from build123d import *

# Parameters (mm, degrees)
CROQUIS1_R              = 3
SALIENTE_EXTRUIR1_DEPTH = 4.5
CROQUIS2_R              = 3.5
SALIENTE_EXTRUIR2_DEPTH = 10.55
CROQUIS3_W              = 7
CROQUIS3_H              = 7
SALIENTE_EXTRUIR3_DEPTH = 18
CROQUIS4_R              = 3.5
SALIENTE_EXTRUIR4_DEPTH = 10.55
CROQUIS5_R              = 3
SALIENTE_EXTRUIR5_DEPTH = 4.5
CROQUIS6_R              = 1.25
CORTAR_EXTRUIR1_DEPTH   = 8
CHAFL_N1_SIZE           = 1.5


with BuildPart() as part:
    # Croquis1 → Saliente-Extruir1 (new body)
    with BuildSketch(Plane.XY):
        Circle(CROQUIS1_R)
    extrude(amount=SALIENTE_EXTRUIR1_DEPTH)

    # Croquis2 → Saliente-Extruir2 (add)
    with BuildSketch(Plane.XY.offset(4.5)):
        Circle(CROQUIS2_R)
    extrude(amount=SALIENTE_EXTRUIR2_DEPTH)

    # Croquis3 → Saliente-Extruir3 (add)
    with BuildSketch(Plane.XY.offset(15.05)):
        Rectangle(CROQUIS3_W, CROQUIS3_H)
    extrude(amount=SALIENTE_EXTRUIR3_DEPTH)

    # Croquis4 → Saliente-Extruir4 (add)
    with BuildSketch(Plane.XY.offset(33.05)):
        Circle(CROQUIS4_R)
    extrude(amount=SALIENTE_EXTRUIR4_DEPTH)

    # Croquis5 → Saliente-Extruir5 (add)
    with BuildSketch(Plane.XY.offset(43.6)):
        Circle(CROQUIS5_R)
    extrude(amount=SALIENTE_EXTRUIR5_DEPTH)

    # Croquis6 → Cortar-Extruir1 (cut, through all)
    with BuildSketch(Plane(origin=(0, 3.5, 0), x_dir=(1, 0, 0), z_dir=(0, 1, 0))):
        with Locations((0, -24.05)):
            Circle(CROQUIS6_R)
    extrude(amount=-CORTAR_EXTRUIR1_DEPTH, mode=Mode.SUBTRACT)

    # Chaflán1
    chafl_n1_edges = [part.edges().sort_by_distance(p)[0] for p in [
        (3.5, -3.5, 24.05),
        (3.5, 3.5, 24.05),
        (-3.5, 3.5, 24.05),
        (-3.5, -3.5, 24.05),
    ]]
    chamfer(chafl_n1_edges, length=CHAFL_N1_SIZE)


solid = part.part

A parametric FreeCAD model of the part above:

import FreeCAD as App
import Part
import Sketcher
Q = App.Units.Quantity


def edges_at(feature, points):
    """Names of the edges that pass closest to the given points."""
    edges = feature.Shape.Edges
    near = lambda p: min(range(len(edges)), key=lambda i: edges[i].distToShape(Part.Vertex(*p))[0])
    return sorted({f"Edge{near(p) + 1}" for p in points})

doc = App.newDocument("Part")
params = doc.addObject("Spreadsheet::Sheet", "Params")
for row, (alias, value) in enumerate([
    ("sketch1_diameter", "6 mm"),
    ("pad1_length", "4.5 mm"),
    ("sketch2_diameter", "7 mm"),
    ("pad2_length", "10.55 mm"),
    ("sketch3_width", "7 mm"),
    ("pad3_length", "18 mm"),
    ("sketch4_diameter", "7 mm"),
    ("pad4_length", "10.55 mm"),
    ("sketch5_diameter", "6 mm"),
    ("pad5_length", "4.5 mm"),
    ("sketch6_diameter", "2.5 mm"),
    ("chamfer_size", "1.5 mm"),
], start=1):
    params.set(f"A{row}", alias)
    params.set(f"B{row}", "=" + value)
    params.setAlias(f"B{row}", alias)

body = doc.addObject("PartDesign::Body", "Body")

sketch1 = doc.addObject("Sketcher::SketchObject", "Sketch")
body.addObject(sketch1)
sketch1.AttachmentSupport = (doc.XY_Plane, [""])
sketch1.MapMode = "FlatFace"
sketch1.addGeometry(Part.Circle(App.Vector(0, 0, 0), App.Vector(0, 0, 1), 3), False)
sketch1.addConstraint([
    Sketcher.Constraint("Coincident", 0, 3, -1, 1),
    Sketcher.Constraint("Diameter", 0, Q("6 mm")),
])
sketch1.setExpression("Constraints[1]", "Params.sketch1_diameter")
pad1 = doc.addObject("PartDesign::Pad", "Pad")
body.addObject(pad1)
pad1.Profile = sketch1
pad1.setExpression("Length", "Params.pad1_length")

sketch2 = doc.addObject("Sketcher::SketchObject", "Sketch001")
body.addObject(sketch2)
sketch2.AttachmentSupport = (doc.XY_Plane, [""])
sketch2.MapMode = "FlatFace"
sketch2.AttachmentOffset = App.Placement(App.Vector(0, 0, 4.5), App.Rotation())
sketch2.addGeometry(Part.Circle(App.Vector(0, 0, 0), App.Vector(0, 0, 1), 3.5), False)
sketch2.addConstraint([
    Sketcher.Constraint("Coincident", 0, 3, -1, 1),
    Sketcher.Constraint("Diameter", 0, Q("7 mm")),
])
sketch2.setExpression("Constraints[1]", "Params.sketch2_diameter")
pad2 = doc.addObject("PartDesign::Pad", "Pad001")
body.addObject(pad2)
pad2.Profile = sketch2
pad2.setExpression("Length", "Params.pad2_length")

sketch3 = doc.addObject("Sketcher::SketchObject", "Sketch002")
body.addObject(sketch3)
sketch3.AttachmentSupport = (doc.XY_Plane, [""])
sketch3.MapMode = "FlatFace"
sketch3.AttachmentOffset = App.Placement(App.Vector(0, 0, 15.05), App.Rotation())
sketch3.addGeometry([
    Part.LineSegment(App.Vector(-3.5, 3.5, 0), App.Vector(-3.5, -3.5, 0)),
    Part.LineSegment(App.Vector(-3.5, -3.5, 0), App.Vector(3.5, -3.5, 0)),
    Part.LineSegment(App.Vector(3.5, -3.5, 0), App.Vector(3.5, 3.5, 0)),
    Part.LineSegment(App.Vector(3.5, 3.5, 0), App.Vector(-3.5, 3.5, 0)),
], False)
sketch3.addConstraint([
    Sketcher.Constraint("Coincident", 0, 2, 1, 1),
    Sketcher.Constraint("Coincident", 1, 2, 2, 1),
    Sketcher.Constraint("Coincident", 2, 2, 3, 1),
    Sketcher.Constraint("Coincident", 3, 2, 0, 1),
    Sketcher.Constraint("Vertical", 0),
    Sketcher.Constraint("Horizontal", 1),
    Sketcher.Constraint("Vertical", 2),
    Sketcher.Constraint("Horizontal", 3),
    Sketcher.Constraint("Symmetric", 0, 2, 2, 2, -1, 1),
    Sketcher.Constraint("Equal", 3, 0),
    Sketcher.Constraint("DistanceX", 1, 1, 1, 2, Q("7 mm")),
])
sketch3.setExpression("Constraints[10]", "Params.sketch3_width")
pad3 = doc.addObject("PartDesign::Pad", "Pad002")
body.addObject(pad3)
pad3.Profile = sketch3
pad3.setExpression("Length", "Params.pad3_length")

sketch4 = doc.addObject("Sketcher::SketchObject", "Sketch003")
body.addObject(sketch4)
sketch4.AttachmentSupport = (doc.XY_Plane, [""])
sketch4.MapMode = "FlatFace"
sketch4.AttachmentOffset = App.Placement(App.Vector(0, 0, 33.05), App.Rotation())
sketch4.addGeometry(Part.Circle(App.Vector(0, 0, 0), App.Vector(0, 0, 1), 3.5), False)
sketch4.addConstraint([
    Sketcher.Constraint("Coincident", 0, 3, -1, 1),
    Sketcher.Constraint("Diameter", 0, Q("7 mm")),
])
sketch4.setExpression("Constraints[1]", "Params.sketch4_diameter")
pad4 = doc.addObject("PartDesign::Pad", "Pad003")
body.addObject(pad4)
pad4.Profile = sketch4
pad4.setExpression("Length", "Params.pad4_length")

sketch5 = doc.addObject("Sketcher::SketchObject", "Sketch004")
body.addObject(sketch5)
sketch5.AttachmentSupport = (doc.XY_Plane, [""])
sketch5.MapMode = "FlatFace"
sketch5.AttachmentOffset = App.Placement(App.Vector(0, 0, 43.6), App.Rotation())
sketch5.addGeometry(Part.Circle(App.Vector(0, 0, 0), App.Vector(0, 0, 1), 3), False)
sketch5.addConstraint([
    Sketcher.Constraint("Coincident", 0, 3, -1, 1),
    Sketcher.Constraint("Diameter", 0, Q("6 mm")),
])
sketch5.setExpression("Constraints[1]", "Params.sketch5_diameter")
pad5 = doc.addObject("PartDesign::Pad", "Pad004")
body.addObject(pad5)
pad5.Profile = sketch5
pad5.setExpression("Length", "Params.pad5_length")

sketch6 = doc.addObject("Sketcher::SketchObject", "Sketch005")
body.addObject(sketch6)
sketch6.AttachmentSupport = (doc.XZ_Plane, [""])
sketch6.MapMode = "FlatFace"
sketch6.AttachmentOffset = App.Placement(App.Vector(0, 0, -3.5), App.Rotation())
sketch6.addGeometry(Part.Circle(App.Vector(0, 24.05, 0), App.Vector(0, 0, 1), 1.25), False)
sketch6.addConstraint([
    Sketcher.Constraint("PointOnObject", 0, 3, -2),
    Sketcher.Constraint("Diameter", 0, Q("2.5 mm")),
    Sketcher.Constraint("DistanceY", -1, 1, 0, 3, Q("24.05 mm")),
])
sketch6.setExpression("Constraints[1]", "Params.sketch6_diameter")
pocket1 = doc.addObject("PartDesign::Pocket", "Pocket")
body.addObject(pocket1)
pocket1.Profile = sketch6
pocket1.Type = "ThroughAll"
pocket1.Reversed = True
doc.recompute()

chamfer = doc.addObject("PartDesign::Chamfer", "Chamfer")
body.addObject(chamfer)
chamfer.Base = (pocket1, edges_at(pocket1, [
    (3.5, -3.5, 24.05),
    (3.5, 3.5, 24.05),
    (-3.5, 3.5, 24.05),
    (-3.5, -3.5, 24.05),
]))
chamfer.setExpression("Size", "Params.chamfer_size")

doc.recompute()
